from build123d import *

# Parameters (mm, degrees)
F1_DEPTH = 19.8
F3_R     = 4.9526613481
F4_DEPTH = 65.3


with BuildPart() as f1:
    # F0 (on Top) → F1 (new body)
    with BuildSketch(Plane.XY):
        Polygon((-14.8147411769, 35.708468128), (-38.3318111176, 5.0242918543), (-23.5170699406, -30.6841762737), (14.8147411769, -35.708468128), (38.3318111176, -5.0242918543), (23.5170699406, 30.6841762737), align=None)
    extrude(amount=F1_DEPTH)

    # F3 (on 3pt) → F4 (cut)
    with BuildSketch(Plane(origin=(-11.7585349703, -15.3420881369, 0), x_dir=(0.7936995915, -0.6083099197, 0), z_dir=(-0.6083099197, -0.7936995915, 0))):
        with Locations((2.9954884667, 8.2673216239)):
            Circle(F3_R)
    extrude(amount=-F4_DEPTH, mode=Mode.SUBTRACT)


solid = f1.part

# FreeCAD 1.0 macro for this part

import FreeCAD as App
import Part
import Sketcher


def add_polygon(sketch, points):
    """Adds a closed chain of lines whose ends are joined by coincident constraints."""
    first, n = sketch.GeometryCount, len(points)
    for a, b in zip(points, points[1:] + points[:1]):
        sketch.addGeometry(Part.LineSegment(App.Vector(*a, 0), App.Vector(*b, 0)), False)
    for i in range(n):
        sketch.addConstraint(Sketcher.Constraint("Coincident", first + i, 2, first + (i + 1) % n, 1))

doc = App.newDocument("Part")
body = doc.addObject("PartDesign::Body", "Body")

# Sketch on XY plane
sketch1 = body.newObject("Sketcher::SketchObject", "Sketch")
sketch1.AttachmentSupport = (doc.getObject("XY_Plane"), [""])
sketch1.MapMode = "FlatFace"
add_polygon(sketch1, [(-15, 36), (-38, 5), (-24, -31), (15, -36), (38, -5), (24, 31)])  # lines 0-5
sketch1.addConstraint(Sketcher.Constraint("Symmetric", 0, 2, 3, 2, -1, 1))
sketch1.addConstraint(Sketcher.Constraint("Symmetric", 1, 2, 4, 2, -1, 1))
sketch1.addConstraint(Sketcher.Constraint("Symmetric", 2, 2, 5, 2, -1, 1))
sketch1.addConstraint(Sketcher.Constraint("Equal", 0, 1))
sketch1.addConstraint(Sketcher.Constraint("Equal", 1, 2))
sketch1.addConstraint(Sketcher.Constraint("DistanceX", 0, 2, -1, 1, 38.331811))
sketch1.addConstraint(Sketcher.Constraint("DistanceY", -1, 1, 0, 2, 5.024292))
sketch1.addConstraint(Sketcher.Constraint("DistanceX", 1, 2, -1, 1, 23.51707))
sketch1.addConstraint(Sketcher.Constraint("DistanceX", -1, 1, 2, 2, 14.814741))
pad1 = body.newObject("PartDesign::Pad", "Pad")
pad1.Profile = sketch1
pad1.Length = 19.8

# Sketch on an angled plane
sketch2 = body.newObject("Sketcher::SketchObject", "Sketch001")
sketch2.Placement = App.Placement(App.Vector(-11.758535, -15.342088, 0), App.Rotation(App.Vector(0.793699592, -0.60830992, 0), App.Vector(0, 0, 1.000000001), App.Vector(-0.60830992, -0.793699592, 0), "ZXY"))
sketch2.addGeometry(Part.Circle(App.Vector(3, 8.3, 0), App.Vector(0, 0, 1), 5), False)
sketch2.addConstraint(Sketcher.Constraint("Diameter", 0, 9.905323))
sketch2.addConstraint(Sketcher.Constraint("DistanceX", -1, 1, 0, 3, 2.995488))
sketch2.addConstraint(Sketcher.Constraint("DistanceY", -1, 1, 0, 3, 8.267322))
pocket1 = body.newObject("PartDesign::Pocket", "Pocket")
pocket1.Profile = sketch2
pocket1.Length = 65.3

doc.recompute()
